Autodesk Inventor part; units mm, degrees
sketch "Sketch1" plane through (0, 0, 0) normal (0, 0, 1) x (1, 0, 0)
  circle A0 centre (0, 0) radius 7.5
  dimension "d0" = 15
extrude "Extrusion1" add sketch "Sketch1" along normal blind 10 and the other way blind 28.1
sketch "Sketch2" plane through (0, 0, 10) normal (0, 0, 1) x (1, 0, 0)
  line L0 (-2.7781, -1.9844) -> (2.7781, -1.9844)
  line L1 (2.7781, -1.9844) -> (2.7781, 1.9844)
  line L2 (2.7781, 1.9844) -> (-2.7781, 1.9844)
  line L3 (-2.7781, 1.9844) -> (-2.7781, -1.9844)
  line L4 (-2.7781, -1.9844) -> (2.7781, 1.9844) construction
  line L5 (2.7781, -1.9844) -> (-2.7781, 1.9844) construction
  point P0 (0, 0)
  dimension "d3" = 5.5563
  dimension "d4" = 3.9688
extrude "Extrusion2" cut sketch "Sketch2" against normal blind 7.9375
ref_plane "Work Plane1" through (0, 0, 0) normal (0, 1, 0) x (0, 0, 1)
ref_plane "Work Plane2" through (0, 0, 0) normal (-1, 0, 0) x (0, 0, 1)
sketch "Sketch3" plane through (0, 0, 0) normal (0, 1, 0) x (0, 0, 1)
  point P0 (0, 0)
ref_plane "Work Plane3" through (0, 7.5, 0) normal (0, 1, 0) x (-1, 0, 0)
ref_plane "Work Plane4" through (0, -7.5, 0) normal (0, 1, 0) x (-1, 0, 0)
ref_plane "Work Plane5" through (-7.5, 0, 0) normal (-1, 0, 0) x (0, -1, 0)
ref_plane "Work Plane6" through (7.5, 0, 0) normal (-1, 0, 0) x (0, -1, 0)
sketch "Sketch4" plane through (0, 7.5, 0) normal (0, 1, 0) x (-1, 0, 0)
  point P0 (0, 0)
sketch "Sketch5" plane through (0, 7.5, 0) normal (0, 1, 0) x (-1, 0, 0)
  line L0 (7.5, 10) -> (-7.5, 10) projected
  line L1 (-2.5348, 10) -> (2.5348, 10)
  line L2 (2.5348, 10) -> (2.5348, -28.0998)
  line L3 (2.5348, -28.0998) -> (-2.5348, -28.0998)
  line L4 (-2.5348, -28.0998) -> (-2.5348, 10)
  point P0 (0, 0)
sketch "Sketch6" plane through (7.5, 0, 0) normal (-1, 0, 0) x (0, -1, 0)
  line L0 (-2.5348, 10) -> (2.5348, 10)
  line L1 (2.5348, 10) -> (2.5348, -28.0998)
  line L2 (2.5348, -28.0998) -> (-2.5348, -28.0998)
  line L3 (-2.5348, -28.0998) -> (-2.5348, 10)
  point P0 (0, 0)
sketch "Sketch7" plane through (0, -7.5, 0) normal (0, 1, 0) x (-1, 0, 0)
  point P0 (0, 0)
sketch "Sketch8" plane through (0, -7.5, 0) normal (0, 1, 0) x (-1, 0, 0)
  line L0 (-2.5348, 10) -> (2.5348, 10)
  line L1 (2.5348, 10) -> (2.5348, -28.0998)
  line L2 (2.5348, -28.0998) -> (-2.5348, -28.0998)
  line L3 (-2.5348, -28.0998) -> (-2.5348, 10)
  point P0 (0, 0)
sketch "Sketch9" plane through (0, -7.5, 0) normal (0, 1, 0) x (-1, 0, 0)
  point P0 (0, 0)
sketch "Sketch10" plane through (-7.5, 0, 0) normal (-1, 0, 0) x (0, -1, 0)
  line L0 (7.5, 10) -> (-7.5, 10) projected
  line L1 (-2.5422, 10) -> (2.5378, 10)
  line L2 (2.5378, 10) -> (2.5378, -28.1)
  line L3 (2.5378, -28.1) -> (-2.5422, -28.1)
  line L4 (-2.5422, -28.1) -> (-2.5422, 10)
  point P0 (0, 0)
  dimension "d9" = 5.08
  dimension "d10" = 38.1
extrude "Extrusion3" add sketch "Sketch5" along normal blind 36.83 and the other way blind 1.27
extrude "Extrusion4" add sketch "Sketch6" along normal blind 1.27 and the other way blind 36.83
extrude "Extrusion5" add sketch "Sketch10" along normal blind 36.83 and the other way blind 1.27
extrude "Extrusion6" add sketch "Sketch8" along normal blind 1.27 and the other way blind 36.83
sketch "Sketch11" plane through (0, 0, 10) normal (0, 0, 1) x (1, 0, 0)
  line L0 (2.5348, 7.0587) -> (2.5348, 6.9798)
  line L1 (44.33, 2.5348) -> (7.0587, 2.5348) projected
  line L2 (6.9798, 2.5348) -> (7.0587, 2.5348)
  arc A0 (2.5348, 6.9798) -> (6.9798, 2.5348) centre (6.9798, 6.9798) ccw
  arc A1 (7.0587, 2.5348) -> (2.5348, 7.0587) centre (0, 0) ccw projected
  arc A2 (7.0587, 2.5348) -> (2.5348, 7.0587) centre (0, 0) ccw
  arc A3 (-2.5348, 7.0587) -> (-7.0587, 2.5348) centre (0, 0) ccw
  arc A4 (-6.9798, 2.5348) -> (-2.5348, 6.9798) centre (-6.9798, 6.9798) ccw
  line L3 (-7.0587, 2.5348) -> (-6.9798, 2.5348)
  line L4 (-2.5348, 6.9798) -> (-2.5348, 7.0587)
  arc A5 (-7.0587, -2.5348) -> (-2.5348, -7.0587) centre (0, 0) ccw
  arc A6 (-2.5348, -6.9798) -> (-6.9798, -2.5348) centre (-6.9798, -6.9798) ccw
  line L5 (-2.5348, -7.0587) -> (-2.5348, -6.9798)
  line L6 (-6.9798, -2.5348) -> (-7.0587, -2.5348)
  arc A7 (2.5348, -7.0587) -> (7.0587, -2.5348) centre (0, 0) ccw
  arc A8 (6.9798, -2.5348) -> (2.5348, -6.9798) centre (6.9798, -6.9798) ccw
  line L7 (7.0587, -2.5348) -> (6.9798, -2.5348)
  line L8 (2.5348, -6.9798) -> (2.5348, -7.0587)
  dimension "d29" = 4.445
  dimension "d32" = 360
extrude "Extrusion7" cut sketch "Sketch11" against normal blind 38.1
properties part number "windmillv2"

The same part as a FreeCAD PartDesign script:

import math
import FreeCAD as App
import Part
import Sketcher
Q = App.Units.Quantity

doc = App.newDocument("Part")
params = doc.addObject("Spreadsheet::Sheet", "Params")
for row, (alias, value) in enumerate([
    ("pad1_length", "0.3937008 in"),
    ("pad1_length2", "1.1062992 in"),
    ("sketch2_width", "0.218748 in"),
    ("sketch2_height", "0.156252 in"),
    ("pocket1_length", "0.3125 in"),
    ("sketch3_height", "1.5 in"),
    ("pad2_length", "1.45 in"),
    ("pad2_length2", "0.05 in"),
    ("sketch4_height", "1.5 in"),
    ("pad3_length", "0.05 in"),
    ("pad3_length2", "1.45 in"),
    ("sketch5_width", "0.2 in"),
    ("sketch5_height", "1.5 in"),
    ("pad4_length", "1.45 in"),
    ("pad4_length2", "0.05 in"),
    ("sketch6_height", "1.5 in"),
    ("pad5_length", "0.05 in"),
    ("pad5_length2", "1.45 in"),
    ("sketch7_radius", "0.175 in"),
    ("pocket2_length", "1.5 in"),
], start=1):
    params.set(f"A{row}", alias)
    params.set(f"B{row}", "=" + value)
    params.setAlias(f"B{row}", alias)

body = doc.addObject("PartDesign::Body", "Body")

sketch1 = body.newObject("Sketcher::SketchObject", "Sketch")
sketch1.AttachmentSupport = (doc.getObject("XY_Plane"), [""])
sketch1.MapMode = "FlatFace"
sketch1.addGeometry(Part.Circle(App.Vector(0, 0, 0), App.Vector(0, 0, 1), 8), False)
sketch1.addConstraint(Sketcher.Constraint("Coincident", 0, 3, -1, 1))
sketch1.addConstraint(Sketcher.Constraint("Diameter", 0, 15.0))
pad1 = body.newObject("PartDesign::Pad", "Pad")
pad1.Profile = sketch1
pad1.Type = "TwoLengths"
pad1.setExpression("Length", "Params.pad1_length")
pad1.setExpression("Length2", "Params.pad1_length2")

sketch2 = body.newObject("Sketcher::SketchObject", "Sketch001")
sketch2.AttachmentSupport = (doc.getObject("XY_Plane"), [""])
sketch2.MapMode = "FlatFace"
sketch2.AttachmentOffset = App.Placement(App.Vector(0, 0, 0.3937008 * 25.4), App.Rotation())
sketch2.addGeometry(Part.LineSegment(App.Vector(-2.8, 2, 0), App.Vector(-2.8, -2, 0)), False)
sketch2.addGeometry(Part.LineSegment(App.Vector(-2.8, -2, 0), App.Vector(2.8, -2, 0)), False)
sketch2.addGeometry(Part.LineSegment(App.Vector(2.8, -2, 0), App.Vector(2.8, 2, 0)), False)
sketch2.addGeometry(Part.LineSegment(App.Vector(2.8, 2, 0), App.Vector(-2.8, 2, 0)), False)
sketch2.addConstraint(Sketcher.Constraint("Coincident", 0, 2, 1, 1))
sketch2.addConstraint(Sketcher.Constraint("Coincident", 1, 2, 2, 1))
sketch2.addConstraint(Sketcher.Constraint("Coincident", 2, 2, 3, 1))
sketch2.addConstraint(Sketcher.Constraint("Coincident", 3, 2, 0, 1))
sketch2.addConstraint(Sketcher.Constraint("Vertical", 0))
sketch2.addConstraint(Sketcher.Constraint("Horizontal", 1))
sketch2.addConstraint(Sketcher.Constraint("Vertical", 2))
sketch2.addConstraint(Sketcher.Constraint("Horizontal", 3))
sketch2.addConstraint(Sketcher.Constraint("Symmetric", 0, 2, 2, 2, -1, 1))
sketch2.addConstraint(Sketcher.Constraint("DistanceX", 1, 1, 1, 2, Q("0.218748 in")))
sketch2.addConstraint(Sketcher.Constraint("DistanceY", 0, 2, 0, 1, Q("0.156252 in")))
sketch2.setExpression("Constraints[9]", "Params.sketch2_width")
sketch2.setExpression("Constraints[10]", "Params.sketch2_height")
pocket1 = body.newObject("PartDesign::Pocket", "Pocket")
pocket1.Profile = sketch2
pocket1.setExpression("Length", "Params.pocket1_length")

sketch3 = body.newObject("Sketcher::SketchObject", "Sketch002")
sketch3.AttachmentSupport = (doc.getObject("XZ_Plane"), [""])
sketch3.MapMode = "FlatFace"
sketch3.AttachmentOffset = App.Placement(App.Vector(0, 0, -7.5), App.Rotation())
sketch3.addGeometry(Part.LineSegment(App.Vector(-3, -28, 0), App.Vector(-3, 10, 0)), False)
sketch3.addGeometry(Part.LineSegment(App.Vector(-3, 10, 0), App.Vector(3, 10, 0)), False)
sketch3.addGeometry(Part.LineSegment(App.Vector(3, 10, 0), App.Vector(3, -28, 0)), False)
sketch3.addGeometry(Part.LineSegment(App.Vector(3, -28, 0), App.Vector(-3, -28, 0)), False)
sketch3.addConstraint(Sketcher.Constraint("Coincident", 0, 2, 1, 1))
sketch3.addConstraint(Sketcher.Constraint("Coincident", 1, 2, 2, 1))
sketch3.addConstraint(Sketcher.Constraint("Coincident", 2, 2, 3, 1))
sketch3.addConstraint(Sketcher.Constraint("Coincident", 3, 2, 0, 1))
sketch3.addConstraint(Sketcher.Constraint("Vertical", 0))
sketch3.addConstraint(Sketcher.Constraint("Horizontal", 1))
sketch3.addConstraint(Sketcher.Constraint("Vertical", 2))
sketch3.addConstraint(Sketcher.Constraint("Horizontal", 3))
sketch3.addConstraint(Sketcher.Constraint("DistanceY", 0, 1, 0, 2, Q("1.5 in")))
sketch3.addConstraint(Sketcher.Constraint("DistanceX", 1, 1, 1, 2, Q("0.1996 in")))
sketch3.addConstraint(Sketcher.Constraint("DistanceX", 0, 2, -1, 1, Q("0.0998 in")))
sketch3.addConstraint(Sketcher.Constraint("DistanceY", -1, 1, 0, 2, Q("0.3937 in")))
sketch3.setExpression("Constraints[8]", "Params.sketch3_height")
pad2 = body.newObject("PartDesign::Pad", "Pad001")
pad2.Profile = sketch3
pad2.Type = "TwoLengths"
pad2.setExpression("Length", "Params.pad2_length")
pad2.setExpression("Length2", "Params.pad2_length2")
pad2.Reversed = True

sketch4 = body.newObject("Sketcher::SketchObject", "Sketch003")
sketch4.AttachmentSupport = (doc.getObject("YZ_Plane"), [""])
sketch4.MapMode = "FlatFace"
sketch4.AttachmentOffset = App.Placement(App.Vector(0, 0, 7.5), App.Rotation())
sketch4.addGeometry(Part.LineSegment(App.Vector(-3, 10, 0), App.Vector(3, 10, 0)), False)
sketch4.addGeometry(Part.LineSegment(App.Vector(3, 10, 0), App.Vector(3, -28, 0)), False)
sketch4.addGeometry(Part.LineSegment(App.Vector(3, -28, 0), App.Vector(-3, -28, 0)), False)
sketch4.addGeometry(Part.LineSegment(App.Vector(-3, -28, 0), App.Vector(-3, 10, 0)), False)
sketch4.addConstraint(Sketcher.Constraint("Coincident", 0, 2, 1, 1))
sketch4.addConstraint(Sketcher.Constraint("Coincident", 1, 2, 2, 1))
sketch4.addConstraint(Sketcher.Constraint("Coincident", 2, 2, 3, 1))
sketch4.addConstraint(Sketcher.Constraint("Coincident", 3, 2, 0, 1))
sketch4.addConstraint(Sketcher.Constraint("Horizontal", 0))
sketch4.addConstraint(Sketcher.Constraint("Vertical", 1))
sketch4.addConstraint(Sketcher.Constraint("Horizontal", 2))
sketch4.addConstraint(Sketcher.Constraint("Vertical", 3))
sketch4.addConstraint(Sketcher.Constraint("DistanceY", 1, 2, 1, 1, Q("1.5 in")))
sketch4.addConstraint(Sketcher.Constraint("DistanceX", 0, 1, 0, 2, Q("0.1996 in")))
sketch4.addConstraint(Sketcher.Constraint("DistanceX", -1, 1, 0, 2, Q("0.0998 in")))
sketch4.addConstraint(Sketcher.Constraint("DistanceY", -1, 1, 0, 2, Q("0.3937 in")))
sketch4.setExpression("Constraints[8]", "Params.sketch4_height")
pad3 = body.newObject("PartDesign::Pad", "Pad002")
pad3.Profile = sketch4
pad3.Type = "TwoLengths"
pad3.setExpression("Length", "Params.pad3_length")
pad3.setExpression("Length2", "Params.pad3_length2")
pad3.Reversed = True

sketch5 = body.newObject("Sketcher::SketchObject", "Sketch004")
sketch5.AttachmentSupport = (doc.getObject("YZ_Plane"), [""])
sketch5.MapMode = "FlatFace"
sketch5.AttachmentOffset = App.Placement(App.Vector(0, 0, -7.5), App.Rotation())
sketch5.addGeometry(Part.LineSegment(App.Vector(-3, -28, 0), App.Vector(-3, 10, 0)), False)
sketch5.addGeometry(Part.LineSegment(App.Vector(-3, 10, 0), App.Vector(3, 10, 0)), False)
sketch5.addGeometry(Part.LineSegment(App.Vector(3, 10, 0), App.Vector(3, -28, 0)), False)
sketch5.addGeometry(Part.LineSegment(App.Vector(3, -28, 0), App.Vector(-3, -28, 0)), False)
sketch5.addConstraint(Sketcher.Constraint("Coincident", 0, 2, 1, 1))
sketch5.addConstraint(Sketcher.Constraint("Coincident", 1, 2, 2, 1))
sketch5.addConstraint(Sketcher.Constraint("Coincident", 2, 2, 3, 1))
sketch5.addConstraint(Sketcher.Constraint("Coincident", 3, 2, 0, 1))
sketch5.addConstraint(Sketcher.Constraint("Vertical", 0))
sketch5.addConstraint(Sketcher.Constraint("Horizontal", 1))
sketch5.addConstraint(Sketcher.Constraint("Vertical", 2))
sketch5.addConstraint(Sketcher.Constraint("Horizontal", 3))
sketch5.addConstraint(Sketcher.Constraint("DistanceX", 1, 1, 1, 2, Q("0.2 in")))
sketch5.addConstraint(Sketcher.Constraint("DistanceY", 0, 1, 0, 2, Q("1.5 in")))
sketch5.addConstraint(Sketcher.Constraint("DistanceY", -1, 1, 0, 2, Q("0.3937 in")))
sketch5.addConstraint(Sketcher.Constraint("DistanceX", 0, 2, -1, 1, 2.5378))
sketch5.setExpression("Constraints[8]", "Params.sketch5_width")
sketch5.setExpression("Constraints[9]", "Params.sketch5_height")
pad4 = body.newObject("PartDesign::Pad", "Pad003")
pad4.Profile = sketch5
pad4.Type = "TwoLengths"
pad4.setExpression("Length", "Params.pad4_length")
pad4.setExpression("Length2", "Params.pad4_length2")
pad4.Reversed = True

sketch6 = body.newObject("Sketcher::SketchObject", "Sketch005")
sketch6.AttachmentSupport = (doc.getObject("XZ_Plane"), [""])
sketch6.MapMode = "FlatFace"
sketch6.AttachmentOffset = App.Placement(App.Vector(0, 0, 7.5), App.Rotation())
sketch6.addGeometry(Part.LineSegment(App.Vector(-3, 10, 0), App.Vector(3, 10, 0)), False)
sketch6.addGeometry(Part.LineSegment(App.Vector(3, 10, 0), App.Vector(3, -28, 0)), False)
sketch6.addGeometry(Part.LineSegment(App.Vector(3, -28, 0), App.Vector(-3, -28, 0)), False)
sketch6.addGeometry(Part.LineSegment(App.Vector(-3, -28, 0), App.Vector(-3, 10, 0)), False)
sketch6.addConstraint(Sketcher.Constraint("Coincident", 0, 2, 1, 1))
sketch6.addConstraint(Sketcher.Constraint("Coincident", 1, 2, 2, 1))
sketch6.addConstraint(Sketcher.Constraint("Coincident", 2, 2, 3, 1))
sketch6.addConstraint(Sketcher.Constraint("Coincident", 3, 2, 0, 1))
sketch6.addConstraint(Sketcher.Constraint("Horizontal", 0))
sketch6.addConstraint(Sketcher.Constraint("Vertical", 1))
sketch6.addConstraint(Sketcher.Constraint("Horizontal", 2))
sketch6.addConstraint(Sketcher.Constraint("Vertical", 3))
sketch6.addConstraint(Sketcher.Constraint("DistanceY", 1, 2, 1, 1, Q("1.5 in")))
sketch6.addConstraint(Sketcher.Constraint("DistanceX", 0, 1, 0, 2, Q("0.1996 in")))
sketch6.addConstraint(Sketcher.Constraint("DistanceX", -1, 1, 0, 2, Q("0.0998 in")))
sketch6.addConstraint(Sketcher.Constraint("DistanceY", -1, 1, 0, 2, Q("0.3937 in")))
sketch6.setExpression("Constraints[8]", "Params.sketch6_height")
pad5 = body.newObject("PartDesign::Pad", "Pad004")
pad5.Profile = sketch6
pad5.Type = "TwoLengths"
pad5.setExpression("Length", "Params.pad5_length")
pad5.setExpression("Length2", "Params.pad5_length2")
pad5.Reversed = True

sketch7 = body.newObject("Sketcher::SketchObject", "Sketch006")
sketch7.AttachmentSupport = (doc.getObject("XY_Plane"), [""])
sketch7.MapMode = "FlatFace"
sketch7.AttachmentOffset = App.Placement(App.Vector(0, 0, 0.3937008 * 25.4), App.Rotation())
sketch7.addGeometry(Part.ArcOfCircle(Part.Circle(App.Vector(0, 0, 0), App.Vector(0, 0, 1), 7.5), math.radians(20), math.radians(70)), False)
sketch7.addGeometry(Part.LineSegment(App.Vector(2.53, 7.06, 0), App.Vector(2.53, 6.98, 0)), False)
sketch7.addGeometry(Part.ArcOfCircle(Part.Circle(App.Vector(6.98, 6.98, 0), App.Vector(0, 0, 1), 4.45), math.radians(180), math.radians(270)), False)
sketch7.addGeometry(Part.LineSegment(App.Vector(6.98, 2.53, 0), App.Vector(7.06, 2.53, 0)), False)
sketch7.addGeometry(Part.LineSegment(App.Vector(-2.53, 6.98, 0), App.Vector(-2.53, 7.06, 0)), False)
sketch7.addGeometry(Part.ArcOfCircle(Part.Circle(App.Vector(0, 0, 0), App.Vector(0, 0, 1), 7.5), math.radians(110), math.radians(160)), False)
sketch7.addGeometry(Part.LineSegment(App.Vector(-7.06, 2.53, 0), App.Vector(-6.98, 2.53, 0)), False)
sketch7.addGeometry(Part.ArcOfCircle(Part.Circle(App.Vector(-6.98, 6.98, 0), App.Vector(0, 0, 1), 4.45), math.radians(-90), math.radians(0)), False)
sketch7.addGeometry(Part.LineSegment(App.Vector(-6.98, -2.53, 0), App.Vector(-7.06, -2.53, 0)), False)
sketch7.addGeometry(Part.ArcOfCircle(Part.Circle(App.Vector(0, 0, 0), App.Vector(0, 0, 1), 7.5), math.radians(-160), math.radians(-110)), False)
sketch7.addGeometry(Part.LineSegment(App.Vector(-2.53, -7.06, 0), App.Vector(-2.53, -6.98, 0)), False)
sketch7.addGeometry(Part.ArcOfCircle(Part.Circle(App.Vector(-6.98, -6.98, 0), App.Vector(0, 0, 1), 4.45), math.radians(0), math.radians(90)), False)
sketch7.addGeometry(Part.LineSegment(App.Vector(2.53, -6.98, 0), App.Vector(2.53, -7.06, 0)), False)
sketch7.addGeometry(Part.ArcOfCircle(Part.Circle(App.Vector(0, 0, 0), App.Vector(0, 0, 1), 7.5), math.radians(-70), math.radians(-20)), False)
sketch7.addGeometry(Part.LineSegment(App.Vector(7.06, -2.53, 0), App.Vector(6.98, -2.53, 0)), False)
sketch7.addGeometry(Part.ArcOfCircle(Part.Circle(App.Vector(6.98, -6.98, 0), App.Vector(0, 0, 1), 4.45), math.radians(90), math.radians(180)), False)
sketch7.addConstraint(Sketcher.Constraint("Coincident", 0, 2, 1, 1))
sketch7.addConstraint(Sketcher.Constraint("Tangent", 1, 2, 2, 1))
sketch7.addConstraint(Sketcher.Constraint("Tangent", 2, 2, 3, 1))
sketch7.addConstraint(Sketcher.Constraint("Coincident", 3, 2, 0, 1))
sketch7.addConstraint(Sketcher.Constraint("Coincident", 4, 2, 5, 1))
sketch7.addConstraint(Sketcher.Constraint("Coincident", 5, 2, 6, 1))
sketch7.addConstraint(Sketcher.Constraint("Tangent", 6, 2, 7, 1))
sketch7.addConstraint(Sketcher.Constraint("Tangent", 7, 2, 4, 1))
sketch7.addConstraint(Sketcher.Constraint("Coincident", 8, 2, 9, 1))
sketch7.addConstraint(Sketcher.Constraint("Coincident", 9, 2, 10, 1))
sketch7.addConstraint(Sketcher.Constraint("Tangent", 10, 2, 11, 1))
sketch7.addConstraint(Sketcher.Constraint("Tangent", 11, 2, 8, 1))
sketch7.addConstraint(Sketcher.Constraint("Coincident", 12, 2, 13, 1))
sketch7.addConstraint(Sketcher.Constraint("Coincident", 13, 2, 14, 1))
sketch7.addConstraint(Sketcher.Constraint("Tangent", 14, 2, 15, 1))
sketch7.addConstraint(Sketcher.Constraint("Tangent", 15, 2, 12, 1))
sketch7.addConstraint(Sketcher.Constraint("Vertical", 1))
sketch7.addConstraint(Sketcher.Constraint("Horizontal", 3))
sketch7.addConstraint(Sketcher.Constraint("Vertical", 4))
sketch7.addConstraint(Sketcher.Constraint("Horizontal", 6))
sketch7.addConstraint(Sketcher.Constraint("Horizontal", 8))
sketch7.addConstraint(Sketcher.Constraint("Vertical", 10))
sketch7.addConstraint(Sketcher.Constraint("Vertical", 12))
sketch7.addConstraint(Sketcher.Constraint("Horizontal", 14))
sketch7.addConstraint(Sketcher.Constraint("Coincident", 0, 3, -1, 1))
sketch7.addConstraint(Sketcher.Constraint("Coincident", 5, 3, -1, 1))
sketch7.addConstraint(Sketcher.Constraint("Coincident", 9, 3, -1, 1))
sketch7.addConstraint(Sketcher.Constraint("Coincident", 13, 3, -1, 1))
sketch7.addConstraint(Sketcher.Constraint("Equal", 0, 5))
sketch7.addConstraint(Sketcher.Constraint("Equal", 2, 7))
sketch7.addConstraint(Sketcher.Constraint("Equal", 5, 9))
sketch7.addConstraint(Sketcher.Constraint("Equal", 7, 11))
sketch7.addConstraint(Sketcher.Constraint("Equal", 9, 13))
sketch7.addConstraint(Sketcher.Constraint("Equal", 11, 15))
sketch7.addConstraint(Sketcher.Constraint("Symmetric", 2, 3, 11, 3, -1, 1))
sketch7.addConstraint(Sketcher.Constraint("Symmetric", 7, 3, 15, 3, -1, 1))
sketch7.addConstraint(Sketcher.Constraint("Symmetric", 2, 3, 7, 3, -2))
sketch7.addConstraint(Sketcher.Constraint("Equal", 14, 1))
sketch7.addConstraint(Sketcher.Constraint("Radius", 2, Q("0.175 in")))
sketch7.addConstraint(Sketcher.Constraint("Radius", 0, 7.5))
sketch7.addConstraint(Sketcher.Constraint("DistanceX", 3, 1, 3, 2, Q("0.0031 in")))
sketch7.setExpression("Constraints[38]", "Params.sketch7_radius")
pocket2 = body.newObject("PartDesign::Pocket", "Pocket001")
pocket2.Profile = sketch7
pocket2.setExpression("Length", "Params.pocket2_length")

doc.recompute()
